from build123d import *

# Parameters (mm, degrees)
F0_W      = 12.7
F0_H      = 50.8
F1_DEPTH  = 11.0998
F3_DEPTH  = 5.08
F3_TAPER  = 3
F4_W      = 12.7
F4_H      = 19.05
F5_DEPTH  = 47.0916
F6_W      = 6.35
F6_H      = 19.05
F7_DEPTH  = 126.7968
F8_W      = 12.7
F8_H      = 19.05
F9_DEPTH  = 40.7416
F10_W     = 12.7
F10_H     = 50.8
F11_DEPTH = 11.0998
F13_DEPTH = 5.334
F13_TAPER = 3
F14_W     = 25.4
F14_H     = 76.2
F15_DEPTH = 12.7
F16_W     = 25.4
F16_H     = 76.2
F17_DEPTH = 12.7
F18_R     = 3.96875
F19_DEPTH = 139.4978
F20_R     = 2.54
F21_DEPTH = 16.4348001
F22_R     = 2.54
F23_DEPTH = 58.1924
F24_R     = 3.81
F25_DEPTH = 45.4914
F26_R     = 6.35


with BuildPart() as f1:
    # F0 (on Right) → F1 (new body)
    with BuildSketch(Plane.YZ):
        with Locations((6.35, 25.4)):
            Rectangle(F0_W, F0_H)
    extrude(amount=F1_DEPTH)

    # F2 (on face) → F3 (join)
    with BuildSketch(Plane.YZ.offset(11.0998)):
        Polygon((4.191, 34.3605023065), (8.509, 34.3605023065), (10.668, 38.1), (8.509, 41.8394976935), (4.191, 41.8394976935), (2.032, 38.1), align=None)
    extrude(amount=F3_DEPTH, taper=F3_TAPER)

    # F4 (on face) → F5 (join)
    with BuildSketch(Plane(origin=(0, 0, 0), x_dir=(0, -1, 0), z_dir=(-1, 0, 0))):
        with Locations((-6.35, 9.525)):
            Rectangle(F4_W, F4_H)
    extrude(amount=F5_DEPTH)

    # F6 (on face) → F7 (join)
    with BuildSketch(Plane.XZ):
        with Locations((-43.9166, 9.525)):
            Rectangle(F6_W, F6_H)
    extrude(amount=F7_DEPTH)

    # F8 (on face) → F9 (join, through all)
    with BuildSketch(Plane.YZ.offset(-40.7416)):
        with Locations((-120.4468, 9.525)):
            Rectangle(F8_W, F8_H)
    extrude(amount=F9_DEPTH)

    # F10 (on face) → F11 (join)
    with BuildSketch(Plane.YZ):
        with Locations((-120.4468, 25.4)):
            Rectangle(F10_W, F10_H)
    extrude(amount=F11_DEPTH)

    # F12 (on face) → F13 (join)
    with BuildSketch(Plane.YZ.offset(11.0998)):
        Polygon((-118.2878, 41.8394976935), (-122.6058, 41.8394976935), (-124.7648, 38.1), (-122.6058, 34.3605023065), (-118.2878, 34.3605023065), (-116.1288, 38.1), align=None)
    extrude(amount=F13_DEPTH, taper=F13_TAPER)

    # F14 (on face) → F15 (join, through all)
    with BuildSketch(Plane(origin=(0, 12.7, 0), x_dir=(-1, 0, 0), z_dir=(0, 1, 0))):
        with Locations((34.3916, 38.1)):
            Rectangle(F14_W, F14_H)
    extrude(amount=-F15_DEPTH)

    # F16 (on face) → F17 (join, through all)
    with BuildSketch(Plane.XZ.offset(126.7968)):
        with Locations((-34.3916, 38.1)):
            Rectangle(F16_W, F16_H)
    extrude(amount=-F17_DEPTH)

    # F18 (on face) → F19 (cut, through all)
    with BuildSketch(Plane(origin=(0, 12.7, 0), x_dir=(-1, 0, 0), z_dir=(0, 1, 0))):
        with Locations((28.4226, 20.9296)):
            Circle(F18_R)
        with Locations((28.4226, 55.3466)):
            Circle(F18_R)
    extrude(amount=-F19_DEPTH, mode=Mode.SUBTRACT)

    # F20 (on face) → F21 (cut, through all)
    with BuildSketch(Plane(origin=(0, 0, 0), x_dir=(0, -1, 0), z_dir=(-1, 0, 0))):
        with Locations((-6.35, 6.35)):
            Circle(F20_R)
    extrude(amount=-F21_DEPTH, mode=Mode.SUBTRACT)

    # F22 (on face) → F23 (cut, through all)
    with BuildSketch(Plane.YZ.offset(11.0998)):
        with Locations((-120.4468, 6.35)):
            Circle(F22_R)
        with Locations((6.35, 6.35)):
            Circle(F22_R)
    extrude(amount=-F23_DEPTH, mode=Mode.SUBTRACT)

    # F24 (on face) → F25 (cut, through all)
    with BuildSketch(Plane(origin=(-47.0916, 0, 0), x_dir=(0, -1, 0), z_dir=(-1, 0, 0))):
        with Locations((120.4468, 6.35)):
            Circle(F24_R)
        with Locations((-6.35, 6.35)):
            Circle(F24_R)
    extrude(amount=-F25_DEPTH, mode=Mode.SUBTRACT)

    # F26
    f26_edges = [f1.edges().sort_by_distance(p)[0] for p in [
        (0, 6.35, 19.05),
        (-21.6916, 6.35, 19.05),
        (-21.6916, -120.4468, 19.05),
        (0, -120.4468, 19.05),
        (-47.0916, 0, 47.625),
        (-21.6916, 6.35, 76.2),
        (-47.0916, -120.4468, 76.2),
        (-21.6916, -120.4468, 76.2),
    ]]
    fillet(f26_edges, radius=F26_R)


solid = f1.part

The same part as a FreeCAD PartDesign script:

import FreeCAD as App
import Part
import Sketcher

V = App.Vector
Q = App.Units.Quantity


def edges_at(feature, points):
    """Names of the edges that pass closest to the given points."""
    edges = feature.Shape.Edges
    near = lambda p: min(range(len(edges)), key=lambda i: edges[i].distToShape(Part.Vertex(*p))[0])
    return sorted({f"Edge{near(p) + 1}" for p in points})


def add_polygon(sketch, points):
    """Adds a closed chain of lines whose ends are joined by coincident constraints."""
    first, n = sketch.GeometryCount, len(points)
    for a, b in zip(points, points[1:] + points[:1]):
        sketch.addGeometry(Part.LineSegment(App.Vector(*a, 0), App.Vector(*b, 0)), False)
    for i in range(n):
        sketch.addConstraint(Sketcher.Constraint("Coincident", first + i, 2, first + (i + 1) % n, 1))

doc = App.newDocument("Part")
body = doc.addObject("PartDesign::Body", "Body")

sketch1 = body.newObject("Sketcher::SketchObject", "Sketch")
sketch1.AttachmentSupport = (doc.getObject("YZ_Plane"), [""])
sketch1.MapMode = "FlatFace"
add_polygon(sketch1, [(0, 51), (0, 0), (13, 0), (13, 51)])
sketch1.addConstraint([
    Sketcher.Constraint("Vertical", 0),
    Sketcher.Constraint("Horizontal", 1),
    Sketcher.Constraint("Vertical", 2),
    Sketcher.Constraint("Horizontal", 3),
    Sketcher.Constraint("Coincident", 0, 2, -1, 1),
    Sketcher.Constraint("DistanceY", 0, 2, 0, 1, Q("2 in")),
    Sketcher.Constraint("DistanceX", 1, 1, 1, 2, Q("0.5 in")),
])
pad1 = body.newObject("PartDesign::Pad", "Pad")
pad1.Profile = sketch1
pad1.Length = Q("0.437 in")

sketch2 = body.newObject("Sketcher::SketchObject", "Sketch001")
sketch2.AttachmentSupport = (doc.getObject("YZ_Plane"), [""])
sketch2.MapMode = "FlatFace"
sketch2.AttachmentOffset = App.Placement(V(0, 0, 0.437 * 25.4), App.Rotation())
add_polygon(sketch2, [(4.2, 34.4), (8.5, 34.4), (10.7, 38.1), (8.5, 41.8), (4.2, 41.8), (2, 38.1)])
sketch2.addConstraint([
    Sketcher.Constraint("Horizontal", 0),
    Sketcher.Constraint("Horizontal", 3),
    Sketcher.Constraint("Parallel", 1, 4),
    Sketcher.Constraint("Parallel", 2, 5),
    Sketcher.Constraint("Horizontal", 1, 2, 4, 2),
    Sketcher.Constraint("Vertical", 0, 2, 2, 2),
    Sketcher.Constraint("Vertical", 3, 2, 5, 2),
    Sketcher.Constraint("Angle", 1, Q("60 deg")),
    Sketcher.Constraint("DistanceX", 0, 1, 0, 2, Q("0.17 in")),
    Sketcher.Constraint("DistanceY", -1, 1, 1, 2, Q("1.5 in")),
    Sketcher.Constraint("Distance", 1, Q("0.17 in")),
    Sketcher.Constraint("DistanceX", -1, 1, 1, 2, Q("0.42 in")),
])
pad2 = body.newObject("PartDesign::Pad", "Pad001")
pad2.Profile = sketch2
pad2.Length = Q("0.2 in")
pad2.TaperAngle = -3

sketch3 = body.newObject("Sketcher::SketchObject", "Sketch002")
sketch3.AttachmentSupport = (doc.getObject("YZ_Plane"), [""])
sketch3.MapMode = "FlatFace"
add_polygon(sketch3, [(13, 19), (13, 0), (0, 0), (0, 19)])
sketch3.addConstraint([
    Sketcher.Constraint("Vertical", 0),
    Sketcher.Constraint("Horizontal", 1),
    Sketcher.Constraint("Vertical", 2),
    Sketcher.Constraint("Horizontal", 3),
    Sketcher.Constraint("Coincident", 1, 2, -1, 1),
    Sketcher.Constraint("DistanceX", 1, 2, 1, 1, Q("0.5 in")),
    Sketcher.Constraint("DistanceY", 0, 2, 0, 1, Q("0.75 in")),
])
pad3 = body.newObject("PartDesign::Pad", "Pad002")
pad3.Profile = sketch3
pad3.Length = Q("1.854 in")
pad3.Reversed = True

sketch4 = body.newObject("Sketcher::SketchObject", "Sketch003")
sketch4.AttachmentSupport = (doc.getObject("XZ_Plane"), [""])
sketch4.MapMode = "FlatFace"
add_polygon(sketch4, [(-47, 19), (-47, 0), (-41, 0), (-41, 19)])
sketch4.addConstraint([
    Sketcher.Constraint("Vertical", 0),
    Sketcher.Constraint("Horizontal", 1),
    Sketcher.Constraint("Vertical", 2),
    Sketcher.Constraint("Horizontal", 3),
    Sketcher.Constraint("PointOnObject", 0, 2, -1),
    Sketcher.Constraint("DistanceX", 1, 1, 1, 2, Q("0.25 in")),
    Sketcher.Constraint("DistanceY", 0, 2, 0, 1, Q("0.75 in")),
    Sketcher.Constraint("DistanceX", 0, 2, -1, 1, Q("1.854 in")),
])
pad4 = body.newObject("PartDesign::Pad", "Pad003")
pad4.Profile = sketch4
pad4.Length = Q("4.992 in")

sketch5 = body.newObject("Sketcher::SketchObject", "Sketch004")
sketch5.AttachmentSupport = (doc.getObject("YZ_Plane"), [""])
sketch5.MapMode = "FlatFace"
sketch5.AttachmentOffset = App.Placement(V(0, 0, -1.604 * 25.4), App.Rotation())
add_polygon(sketch5, [(-127, 19), (-127, 0), (-114, 0), (-114, 19)])
sketch5.addConstraint([
    Sketcher.Constraint("Vertical", 0),
    Sketcher.Constraint("Horizontal", 1),
    Sketcher.Constraint("Vertical", 2),
    Sketcher.Constraint("Horizontal", 3),
    Sketcher.Constraint("PointOnObject", 0, 2, -1),
    Sketcher.Constraint("DistanceX", 1, 1, 1, 2, Q("0.5 in")),
    Sketcher.Constraint("DistanceY", 0, 2, 0, 1, Q("0.75 in")),
    Sketcher.Constraint("DistanceX", 0, 2, -1, 1, Q("4.992 in")),
])
pad5 = body.newObject("PartDesign::Pad", "Pad004")
pad5.Profile = sketch5
pad5.Length = Q("1.604 in")

sketch6 = body.newObject("Sketcher::SketchObject", "Sketch005")
sketch6.AttachmentSupport = (doc.getObject("YZ_Plane"), [""])
sketch6.MapMode = "FlatFace"
add_polygon(sketch6, [(-127, 51), (-127, 0), (-114, 0), (-114, 51)])
sketch6.addConstraint([
    Sketcher.Constraint("Vertical", 0),
    Sketcher.Constraint("Horizontal", 1),
    Sketcher.Constraint("Vertical", 2),
    Sketcher.Constraint("Horizontal", 3),
    Sketcher.Constraint("PointOnObject", 0, 2, -1),
    Sketcher.Constraint("DistanceY", 0, 2, 0, 1, Q("2 in")),
    Sketcher.Constraint("DistanceX", 1, 1, 1, 2, Q("0.5 in")),
    Sketcher.Constraint("DistanceX", 0, 2, -1, 1, Q("4.992 in")),
])
pad6 = body.newObject("PartDesign::Pad", "Pad005")
pad6.Profile = sketch6
pad6.Length = Q("0.437 in")

sketch7 = body.newObject("Sketcher::SketchObject", "Sketch006")
sketch7.AttachmentSupport = (doc.getObject("YZ_Plane"), [""])
sketch7.MapMode = "FlatFace"
sketch7.AttachmentOffset = App.Placement(V(0, 0, 0.437 * 25.4), App.Rotation())
add_polygon(sketch7, [(-118.3, 41.8), (-122.6, 41.8), (-124.8, 38.1), (-122.6, 34.4), (-118.3, 34.4), (-116.1, 38.1)])
sketch7.addConstraint([
    Sketcher.Constraint("Horizontal", 0),
    Sketcher.Constraint("Horizontal", 3),
    Sketcher.Constraint("Parallel", 1, 4),
    Sketcher.Constraint("Parallel", 2, 5),
    Sketcher.Constraint("Horizontal", 1, 2, 4, 2),
    Sketcher.Constraint("Vertical", 0, 2, 2, 2),
    Sketcher.Constraint("Vertical", 3, 2, 5, 2),
    Sketcher.Constraint("Angle", 1, Q("-120 deg")),
    Sketcher.Constraint("DistanceX", 0, 2, 0, 1, Q("0.17 in")),
    Sketcher.Constraint("DistanceY", -1, 1, 1, 2, Q("1.5 in")),
    Sketcher.Constraint("Distance", 1, Q("0.17 in")),
    Sketcher.Constraint("DistanceX", 0, 2, -1, 1, Q("4.827 in")),
])
pad7 = body.newObject("PartDesign::Pad", "Pad006")
pad7.Profile = sketch7
pad7.Length = Q("0.21 in")
pad7.TaperAngle = -3

sketch8 = body.newObject("Sketcher::SketchObject", "Sketch007")
sketch8.AttachmentSupport = (doc.getObject("XZ_Plane"), [""])
sketch8.MapMode = "FlatFace"
sketch8.AttachmentOffset = App.Placement(V(0, 0, -0.5 * 25.4), App.Rotation())
add_polygon(sketch8, [(-22, 76), (-22, 0), (-47, 0), (-47, 76)])
sketch8.addConstraint([
    Sketcher.Constraint("Vertical", 0),
    Sketcher.Constraint("Horizontal", 1),
    Sketcher.Constraint("Vertical", 2),
    Sketcher.Constraint("Horizontal", 3),
    Sketcher.Constraint("PointOnObject", 0, 2, -1),
    Sketcher.Constraint("DistanceX", 1, 2, 1, 1, Q("1 in")),
    Sketcher.Constraint("DistanceY", 0, 2, 0, 1, Q("3 in")),
    Sketcher.Constraint("DistanceX", 0, 2, -1, 1, Q("0.854 in")),
])
pad8 = body.newObject("PartDesign::Pad", "Pad007")
pad8.Profile = sketch8
pad8.Length = Q("0.5 in")

sketch9 = body.newObject("Sketcher::SketchObject", "Sketch008")
sketch9.AttachmentSupport = (doc.getObject("XZ_Plane"), [""])
sketch9.MapMode = "FlatFace"
sketch9.AttachmentOffset = App.Placement(V(0, 0, 4.992 * 25.4), App.Rotation())
add_polygon(sketch9, [(-47, 76), (-47, 0), (-22, 0), (-22, 76)])
sketch9.addConstraint([
    Sketcher.Constraint("Vertical", 0),
    Sketcher.Constraint("Horizontal", 1),
    Sketcher.Constraint("Vertical", 2),
    Sketcher.Constraint("Horizontal", 3),
    Sketcher.Constraint("PointOnObject", 0, 2, -1),
    Sketcher.Constraint("DistanceX", 1, 1, 1, 2, Q("1 in")),
    Sketcher.Constraint("DistanceY", 0, 2, 0, 1, Q("3 in")),
    Sketcher.Constraint("DistanceX", 0, 2, -1, 1, Q("1.854 in")),
])
pad9 = body.newObject("PartDesign::Pad", "Pad008")
pad9.Profile = sketch9
pad9.Length = Q("0.5 in")
pad9.Reversed = True

sketch10 = body.newObject("Sketcher::SketchObject", "Sketch009")
sketch10.AttachmentSupport = (doc.getObject("XZ_Plane"), [""])
sketch10.MapMode = "FlatFace"
sketch10.AttachmentOffset = App.Placement(V(0, 0, -0.5 * 25.4), App.Rotation())
sketch10.addGeometry([
    Part.Circle(V(-28.4, 20.9, 0), V(0, 0, 1), 4),
    Part.Circle(V(-28.4, 55.3, 0), V(0, 0, 1), 4),
], False)
sketch10.addConstraint([
    Sketcher.Constraint("Equal", 0, 1),
    Sketcher.Constraint("Vertical", 0, 3, 1, 3),
    Sketcher.Constraint("Diameter", 0, Q("0.3125 in")),
    Sketcher.Constraint("DistanceX", 0, 3, -1, 1, Q("1.119 in")),
    Sketcher.Constraint("DistanceY", -1, 1, 0, 3, Q("0.824 in")),
    Sketcher.Constraint("DistanceY", -1, 1, 1, 3, Q("2.179 in")),
])
pocket1 = body.newObject("PartDesign::Pocket", "Pocket")
pocket1.Profile = sketch10
pocket1.Type = "ThroughAll"
pocket1.Reversed = True

sketch11 = body.newObject("Sketcher::SketchObject", "Sketch010")
sketch11.AttachmentSupport = (doc.getObject("YZ_Plane"), [""])
sketch11.MapMode = "FlatFace"
sketch11.addGeometry(Part.Circle(V(6.3, 6.3, 0), V(0, 0, 1), 2.5), False)
sketch11.addConstraint([
    Sketcher.Constraint("Diameter", 0, Q("0.2 in")),
    Sketcher.Constraint("DistanceX", -1, 1, 0, 3, Q("0.25 in")),
    Sketcher.Constraint("DistanceY", -1, 1, 0, 3, Q("0.25 in")),
])
pocket2 = body.newObject("PartDesign::Pocket", "Pocket001")
pocket2.Profile = sketch11
pocket2.Type = "ThroughAll"
pocket2.Reversed = True

sketch12 = body.newObject("Sketcher::SketchObject", "Sketch011")
sketch12.AttachmentSupport = (doc.getObject("YZ_Plane"), [""])
sketch12.MapMode = "FlatFace"
sketch12.AttachmentOffset = App.Placement(V(0, 0, 0.437 * 25.4), App.Rotation())
sketch12.addGeometry([
    Part.Circle(V(-120.4, 6.3, 0), V(0, 0, 1), 2.5),
    Part.Circle(V(6.3, 6.3, 0), V(0, 0, 1), 2.5),
], False)
sketch12.addConstraint([
    Sketcher.Constraint("Equal", 0, 1),
    Sketcher.Constraint("Horizontal", 0, 3, 1, 3),
    Sketcher.Constraint("Diameter", 0, Q("0.2 in")),
    Sketcher.Constraint("DistanceY", -1, 1, 0, 3, Q("0.25 in")),
    Sketcher.Constraint("DistanceX", -1, 1, 1, 3, Q("0.25 in")),
    Sketcher.Constraint("DistanceX", 0, 3, -1, 1, Q("4.742 in")),
])
pocket3 = body.newObject("PartDesign::Pocket", "Pocket002")
pocket3.Profile = sketch12
pocket3.Type = "ThroughAll"

sketch13 = body.newObject("Sketcher::SketchObject", "Sketch012")
sketch13.AttachmentSupport = (doc.getObject("YZ_Plane"), [""])
sketch13.MapMode = "FlatFace"
sketch13.AttachmentOffset = App.Placement(V(0, 0, -1.854 * 25.4), App.Rotation())
sketch13.addGeometry([
    Part.Circle(V(-120.4, 6.3, 0), V(0, 0, 1), 3.8),
    Part.Circle(V(6.3, 6.3, 0), V(0, 0, 1), 3.8),
], False)
sketch13.addConstraint([
    Sketcher.Constraint("Equal", 0, 1),
    Sketcher.Constraint("Horizontal", 0, 3, 1, 3),
    Sketcher.Constraint("Diameter", 0, Q("0.3 in")),
    Sketcher.Constraint("DistanceY", -1, 1, 0, 3, Q("0.25 in")),
    Sketcher.Constraint("DistanceX", -1, 1, 1, 3, Q("0.25 in")),
    Sketcher.Constraint("DistanceX", 0, 3, -1, 1, Q("4.742 in")),
])
pocket4 = body.newObject("PartDesign::Pocket", "Pocket003")
pocket4.Profile = sketch13
pocket4.Length = Q("1.791 in")
pocket4.Reversed = True
doc.recompute()

fillet = body.newObject("PartDesign::Fillet", "Fillet")
fillet.Base = (pocket4, edges_at(pocket4, [
    (0, 6.35, 19.05),
    (-21.692, 6.35, 19.05),
    (-21.692, -120.447, 19.05),
    (0, -120.447, 19.05),
    (-47.092, 0, 47.625),
    (-21.692, 6.35, 76.2),
    (-47.092, -120.447, 76.2),
    (-21.692, -120.447, 76.2),
]))
fillet.Radius = Q("0.25 in")

doc.recompute()
